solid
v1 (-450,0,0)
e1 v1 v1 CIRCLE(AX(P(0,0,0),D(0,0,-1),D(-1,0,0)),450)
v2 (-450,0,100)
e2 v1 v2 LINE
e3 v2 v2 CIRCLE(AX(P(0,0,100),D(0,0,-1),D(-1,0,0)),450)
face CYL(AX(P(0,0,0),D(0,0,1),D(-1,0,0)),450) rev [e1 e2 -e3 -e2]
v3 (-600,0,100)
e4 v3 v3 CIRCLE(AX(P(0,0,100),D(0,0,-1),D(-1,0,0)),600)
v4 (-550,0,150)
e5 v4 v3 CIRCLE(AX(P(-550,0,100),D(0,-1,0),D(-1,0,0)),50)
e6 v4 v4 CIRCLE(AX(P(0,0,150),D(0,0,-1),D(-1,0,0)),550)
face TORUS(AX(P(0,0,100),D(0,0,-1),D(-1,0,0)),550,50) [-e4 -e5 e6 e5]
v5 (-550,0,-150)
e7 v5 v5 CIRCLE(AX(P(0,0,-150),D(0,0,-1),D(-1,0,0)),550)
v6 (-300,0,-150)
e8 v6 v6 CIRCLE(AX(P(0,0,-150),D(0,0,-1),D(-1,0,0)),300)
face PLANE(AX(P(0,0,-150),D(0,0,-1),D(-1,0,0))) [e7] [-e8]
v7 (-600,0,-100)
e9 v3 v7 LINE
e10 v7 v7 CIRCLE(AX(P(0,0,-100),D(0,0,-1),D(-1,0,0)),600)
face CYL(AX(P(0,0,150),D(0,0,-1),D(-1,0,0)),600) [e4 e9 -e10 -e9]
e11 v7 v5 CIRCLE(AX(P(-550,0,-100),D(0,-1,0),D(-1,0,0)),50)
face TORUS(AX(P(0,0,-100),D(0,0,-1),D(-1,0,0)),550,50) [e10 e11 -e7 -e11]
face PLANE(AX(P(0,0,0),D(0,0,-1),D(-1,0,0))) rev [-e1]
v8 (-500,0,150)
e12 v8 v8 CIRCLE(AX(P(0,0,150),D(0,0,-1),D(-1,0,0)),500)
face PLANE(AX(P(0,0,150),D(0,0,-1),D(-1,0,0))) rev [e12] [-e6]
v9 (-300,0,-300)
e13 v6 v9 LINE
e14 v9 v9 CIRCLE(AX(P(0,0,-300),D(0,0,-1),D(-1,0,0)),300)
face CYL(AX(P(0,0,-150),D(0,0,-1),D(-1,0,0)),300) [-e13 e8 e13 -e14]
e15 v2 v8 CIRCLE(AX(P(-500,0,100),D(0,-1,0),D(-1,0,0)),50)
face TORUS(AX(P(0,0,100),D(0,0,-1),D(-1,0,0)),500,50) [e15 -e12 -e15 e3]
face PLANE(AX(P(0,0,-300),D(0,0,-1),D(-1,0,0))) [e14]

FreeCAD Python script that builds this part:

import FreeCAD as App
import Part
import Sketcher
Q = App.Units.Quantity


def edges_at(feature, points):
    """Names of the edges that pass closest to the given points."""
    edges = feature.Shape.Edges
    near = lambda p: min(range(len(edges)), key=lambda i: edges[i].distToShape(Part.Vertex(*p))[0])
    return sorted({f"Edge{near(p) + 1}" for p in points})

doc = App.newDocument("Part")
body = doc.addObject("PartDesign::Body", "Body")

sketch1 = body.newObject("Sketcher::SketchObject", "Sketch")
sketch1.AttachmentSupport = (doc.getObject("XZ_Plane"), [""])
sketch1.MapMode = "FlatFace"
sketch1.addGeometry(Part.LineSegment(App.Vector(0, 0, 0), App.Vector(-450, 0, 0)), False)
sketch1.addGeometry(Part.LineSegment(App.Vector(-450, 0, 0), App.Vector(-450, 150, 0)), False)
sketch1.addGeometry(Part.LineSegment(App.Vector(-450, 150, 0), App.Vector(-600, 150, 0)), False)
sketch1.addGeometry(Part.LineSegment(App.Vector(-600, 150, 0), App.Vector(-600, -150, 0)), False)
sketch1.addGeometry(Part.LineSegment(App.Vector(-600, -150, 0), App.Vector(-300, -150, 0)), False)
sketch1.addGeometry(Part.LineSegment(App.Vector(-300, -150, 0), App.Vector(-300, -300, 0)), False)
sketch1.addGeometry(Part.LineSegment(App.Vector(-300, -300, 0), App.Vector(0, -300, 0)), False)
sketch1.addGeometry(Part.LineSegment(App.Vector(0, -300, 0), App.Vector(0, 0, 0)), False)
sketch1.addConstraint(Sketcher.Constraint("Coincident", 0, 2, 1, 1))
sketch1.addConstraint(Sketcher.Constraint("Coincident", 1, 2, 2, 1))
sketch1.addConstraint(Sketcher.Constraint("Coincident", 2, 2, 3, 1))
sketch1.addConstraint(Sketcher.Constraint("Coincident", 3, 2, 4, 1))
sketch1.addConstraint(Sketcher.Constraint("Coincident", 4, 2, 5, 1))
sketch1.addConstraint(Sketcher.Constraint("Coincident", 5, 2, 6, 1))
sketch1.addConstraint(Sketcher.Constraint("Coincident", 6, 2, 7, 1))
sketch1.addConstraint(Sketcher.Constraint("Coincident", 7, 2, 0, 1))
sketch1.addConstraint(Sketcher.Constraint("Horizontal", 0))
sketch1.addConstraint(Sketcher.Constraint("Vertical", 1))
sketch1.addConstraint(Sketcher.Constraint("Horizontal", 2))
sketch1.addConstraint(Sketcher.Constraint("Vertical", 3))
sketch1.addConstraint(Sketcher.Constraint("Horizontal", 4))
sketch1.addConstraint(Sketcher.Constraint("Vertical", 5))
sketch1.addConstraint(Sketcher.Constraint("Horizontal", 6))
sketch1.addConstraint(Sketcher.Constraint("Vertical", 7))
sketch1.addConstraint(Sketcher.Constraint("Coincident", 7, 2, -1, 1))
sketch1.addConstraint(Sketcher.Constraint("Equal", 4, 6))
sketch1.addConstraint(Sketcher.Constraint("Equal", 2, 1))
sketch1.addConstraint(Sketcher.Constraint("Equal", 6, 3))
sketch1.addConstraint(Sketcher.Constraint("Equal", 1, 5))
sketch1.addConstraint(Sketcher.Constraint("DistanceX", 0, 2, 0, 1, Q("450 mm")))
sketch1.addConstraint(Sketcher.Constraint("DistanceX", 2, 2, 2, 1, Q("150 mm")))
revolution = body.newObject("PartDesign::Revolution", "Revolution")
revolution.Profile = sketch1
revolution.ReferenceAxis = (sketch1, ["V_Axis"])
revolution.Angle = 360
doc.recompute()

fillet = body.newObject("PartDesign::Fillet", "Fillet")
fillet.Base = (revolution, edges_at(revolution, [(600, 0, 150), (450, 0, 150), (600, 0, -150)]))
fillet.Radius = 50

doc.recompute()
